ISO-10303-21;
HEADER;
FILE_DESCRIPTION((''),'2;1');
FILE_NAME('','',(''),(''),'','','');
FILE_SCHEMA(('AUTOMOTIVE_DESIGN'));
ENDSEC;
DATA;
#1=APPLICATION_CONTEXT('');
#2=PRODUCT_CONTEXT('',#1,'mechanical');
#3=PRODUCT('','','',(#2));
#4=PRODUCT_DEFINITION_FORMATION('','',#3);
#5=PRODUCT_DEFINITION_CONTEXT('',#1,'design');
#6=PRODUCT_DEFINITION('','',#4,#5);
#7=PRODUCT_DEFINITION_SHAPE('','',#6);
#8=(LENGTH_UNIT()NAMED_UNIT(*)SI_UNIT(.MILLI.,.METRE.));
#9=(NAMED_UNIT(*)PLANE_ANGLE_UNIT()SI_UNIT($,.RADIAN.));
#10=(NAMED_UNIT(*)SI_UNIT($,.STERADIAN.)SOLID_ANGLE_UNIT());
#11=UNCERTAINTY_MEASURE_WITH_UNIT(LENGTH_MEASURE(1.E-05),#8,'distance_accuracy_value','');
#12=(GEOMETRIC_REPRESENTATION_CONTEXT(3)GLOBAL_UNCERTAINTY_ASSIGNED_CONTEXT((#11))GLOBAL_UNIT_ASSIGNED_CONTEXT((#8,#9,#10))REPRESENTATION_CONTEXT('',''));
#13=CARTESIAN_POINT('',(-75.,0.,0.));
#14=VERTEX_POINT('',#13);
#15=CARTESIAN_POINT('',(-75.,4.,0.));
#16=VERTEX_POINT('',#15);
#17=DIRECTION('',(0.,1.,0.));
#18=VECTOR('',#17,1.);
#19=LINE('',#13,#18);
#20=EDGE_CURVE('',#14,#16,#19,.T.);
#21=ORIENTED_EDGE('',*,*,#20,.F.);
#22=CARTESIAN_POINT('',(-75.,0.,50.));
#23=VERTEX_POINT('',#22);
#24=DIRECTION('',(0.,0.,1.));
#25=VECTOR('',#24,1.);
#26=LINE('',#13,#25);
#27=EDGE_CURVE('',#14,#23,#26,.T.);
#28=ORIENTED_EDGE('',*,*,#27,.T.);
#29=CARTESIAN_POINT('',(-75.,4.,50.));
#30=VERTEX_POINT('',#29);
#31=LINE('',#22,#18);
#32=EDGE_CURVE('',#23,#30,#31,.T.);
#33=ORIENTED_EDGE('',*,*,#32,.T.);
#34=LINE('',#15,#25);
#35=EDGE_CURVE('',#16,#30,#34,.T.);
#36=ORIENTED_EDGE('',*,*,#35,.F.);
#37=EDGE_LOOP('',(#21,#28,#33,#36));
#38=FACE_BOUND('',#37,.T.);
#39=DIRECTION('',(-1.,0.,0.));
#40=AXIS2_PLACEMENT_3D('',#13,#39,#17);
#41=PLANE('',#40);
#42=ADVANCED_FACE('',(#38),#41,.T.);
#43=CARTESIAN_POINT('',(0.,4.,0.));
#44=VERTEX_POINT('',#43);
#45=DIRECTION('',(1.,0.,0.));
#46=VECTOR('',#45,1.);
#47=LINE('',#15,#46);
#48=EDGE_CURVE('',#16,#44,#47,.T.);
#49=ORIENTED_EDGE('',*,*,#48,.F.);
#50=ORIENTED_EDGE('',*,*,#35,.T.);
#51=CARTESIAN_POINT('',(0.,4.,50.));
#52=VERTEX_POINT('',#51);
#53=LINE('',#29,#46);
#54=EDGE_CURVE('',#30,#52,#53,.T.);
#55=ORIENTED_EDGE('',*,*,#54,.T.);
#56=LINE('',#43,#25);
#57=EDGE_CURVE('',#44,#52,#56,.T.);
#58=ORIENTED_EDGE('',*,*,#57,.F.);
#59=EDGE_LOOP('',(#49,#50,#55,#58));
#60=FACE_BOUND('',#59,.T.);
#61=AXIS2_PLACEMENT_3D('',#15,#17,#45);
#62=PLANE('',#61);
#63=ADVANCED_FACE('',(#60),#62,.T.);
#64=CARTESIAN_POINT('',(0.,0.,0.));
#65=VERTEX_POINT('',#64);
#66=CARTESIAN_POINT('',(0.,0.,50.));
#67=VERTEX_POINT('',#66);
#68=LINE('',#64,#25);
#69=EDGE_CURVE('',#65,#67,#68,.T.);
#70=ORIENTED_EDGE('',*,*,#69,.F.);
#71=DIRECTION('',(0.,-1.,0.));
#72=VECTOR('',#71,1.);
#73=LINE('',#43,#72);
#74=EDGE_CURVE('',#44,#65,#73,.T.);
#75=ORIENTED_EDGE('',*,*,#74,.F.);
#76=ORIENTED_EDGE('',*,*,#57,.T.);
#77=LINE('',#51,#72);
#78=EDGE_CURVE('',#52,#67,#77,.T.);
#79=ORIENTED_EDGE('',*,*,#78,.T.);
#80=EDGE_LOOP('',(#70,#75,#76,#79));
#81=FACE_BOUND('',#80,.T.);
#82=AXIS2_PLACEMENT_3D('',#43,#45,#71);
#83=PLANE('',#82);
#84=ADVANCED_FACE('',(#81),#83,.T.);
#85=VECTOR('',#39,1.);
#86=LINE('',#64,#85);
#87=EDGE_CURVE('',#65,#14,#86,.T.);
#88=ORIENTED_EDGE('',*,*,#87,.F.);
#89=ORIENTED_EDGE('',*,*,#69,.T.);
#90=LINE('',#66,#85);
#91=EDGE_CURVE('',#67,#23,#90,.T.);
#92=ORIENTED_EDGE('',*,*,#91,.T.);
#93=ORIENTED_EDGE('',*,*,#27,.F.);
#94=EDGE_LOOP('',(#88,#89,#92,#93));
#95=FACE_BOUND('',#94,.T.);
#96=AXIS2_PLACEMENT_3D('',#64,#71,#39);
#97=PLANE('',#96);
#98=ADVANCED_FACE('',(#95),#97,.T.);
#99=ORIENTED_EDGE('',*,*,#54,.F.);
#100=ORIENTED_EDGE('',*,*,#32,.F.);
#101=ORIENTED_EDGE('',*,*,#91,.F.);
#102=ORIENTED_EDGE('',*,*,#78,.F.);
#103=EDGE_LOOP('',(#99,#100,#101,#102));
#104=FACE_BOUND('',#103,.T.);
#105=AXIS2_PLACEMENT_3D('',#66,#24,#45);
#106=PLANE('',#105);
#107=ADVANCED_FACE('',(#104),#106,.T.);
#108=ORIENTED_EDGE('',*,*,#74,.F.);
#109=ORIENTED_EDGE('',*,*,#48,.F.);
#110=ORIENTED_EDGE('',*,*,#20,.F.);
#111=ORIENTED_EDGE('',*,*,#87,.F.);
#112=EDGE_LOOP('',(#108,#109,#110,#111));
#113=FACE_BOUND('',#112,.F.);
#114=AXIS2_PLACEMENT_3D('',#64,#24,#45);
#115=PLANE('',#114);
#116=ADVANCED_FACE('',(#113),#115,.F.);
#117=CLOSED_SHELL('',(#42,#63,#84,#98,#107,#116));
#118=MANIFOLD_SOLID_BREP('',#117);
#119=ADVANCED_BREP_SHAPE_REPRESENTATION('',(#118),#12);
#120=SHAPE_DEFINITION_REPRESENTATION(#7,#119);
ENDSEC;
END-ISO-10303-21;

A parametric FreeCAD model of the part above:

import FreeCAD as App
import Part
import Sketcher

V = App.Vector
Q = App.Units.Quantity


def add_polygon(sketch, points):
    """Adds a closed chain of lines whose ends are joined by coincident constraints."""
    first, n = sketch.GeometryCount, len(points)
    for a, b in zip(points, points[1:] + points[:1]):
        sketch.addGeometry(Part.LineSegment(App.Vector(*a, 0), App.Vector(*b, 0)), False)
    for i in range(n):
        sketch.addConstraint(Sketcher.Constraint("Coincident", first + i, 2, first + (i + 1) % n, 1))

doc = App.newDocument("Part")
params = doc.addObject("Spreadsheet::Sheet", "Params")
for row, (alias, value) in enumerate([
    ("sketch1_width", "75 mm"),
    ("sketch1_height", "4 mm"),
    ("pad1_length", "50 mm"),
], start=1):
    params.set(f"A{row}", alias)
    params.set(f"B{row}", "=" + value)
    params.setAlias(f"B{row}", alias)

body = doc.addObject("PartDesign::Body", "Body")

sketch1 = body.newObject("Sketcher::SketchObject", "Sketch")
sketch1.AttachmentSupport = (doc.getObject("XY_Plane"), [""])
sketch1.MapMode = "FlatFace"
add_polygon(sketch1, [(-75, 0), (0, 0), (0, 4), (-75, 4)])
sketch1.addConstraint([
    Sketcher.Constraint("Horizontal", 0),
    Sketcher.Constraint("Vertical", 1),
    Sketcher.Constraint("Horizontal", 2),
    Sketcher.Constraint("Vertical", 3),
    Sketcher.Constraint("Coincident", 0, 2, -1, 1),
    Sketcher.Constraint("DistanceX", 0, 1, 0, 2, Q("75 mm")),
    Sketcher.Constraint("DistanceY", 1, 1, 1, 2, Q("4 mm")),
])
sketch1.setExpression("Constraints[9]", "Params.sketch1_width")
sketch1.setExpression("Constraints[10]", "Params.sketch1_height")
pad1 = body.newObject("PartDesign::Pad", "Pad")
pad1.Profile = sketch1
pad1.setExpression("Length", "Params.pad1_length")

doc.recompute()
